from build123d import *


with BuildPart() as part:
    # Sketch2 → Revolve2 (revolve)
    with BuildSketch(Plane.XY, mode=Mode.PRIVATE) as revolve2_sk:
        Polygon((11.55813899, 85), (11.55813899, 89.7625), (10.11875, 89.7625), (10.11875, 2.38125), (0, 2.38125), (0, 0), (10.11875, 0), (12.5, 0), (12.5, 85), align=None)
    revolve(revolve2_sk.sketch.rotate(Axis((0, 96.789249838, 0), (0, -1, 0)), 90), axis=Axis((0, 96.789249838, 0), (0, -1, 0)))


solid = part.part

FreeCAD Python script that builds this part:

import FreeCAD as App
import Part
import Sketcher

V = App.Vector


def add_polygon(sketch, points):
    """Adds a closed chain of lines whose ends are joined by coincident constraints."""
    first, n = sketch.GeometryCount, len(points)
    for a, b in zip(points, points[1:] + points[:1]):
        sketch.addGeometry(Part.LineSegment(App.Vector(*a, 0), App.Vector(*b, 0)), False)
    for i in range(n):
        sketch.addConstraint(Sketcher.Constraint("Coincident", first + i, 2, first + (i + 1) % n, 1))

doc = App.newDocument("Part")
params = doc.addObject("Spreadsheet::Sheet", "Params")
for row, (alias, value) in enumerate([
    ("sketch1_height", "85 mm"),
    ("sketch1_width", "12.5 mm"),
    ("revolution_angle", "360 deg"),
], start=1):
    params.set(f"A{row}", alias)
    params.set(f"B{row}", "=" + value)
    params.setAlias(f"B{row}", alias)

body = doc.addObject("PartDesign::Body", "Body")

# Sketch on XY plane
sketch1 = body.newObject("Sketcher::SketchObject", "Sketch")
sketch1.AttachmentSupport = (doc.getObject("XY_Plane"), [""])
sketch1.MapMode = "FlatFace"
add_polygon(sketch1, [(11.558139, 85), (11.558139, 89.7625), (10.11875, 89.7625), (10.11875, 2.38125), (0, 2.38125), (0, 0), (12.5, 0), (12.5, 85)])  # lines 0-7
sketch1.addConstraint([
    Sketcher.Constraint("Vertical", 0),
    Sketcher.Constraint("Horizontal", 1),
    Sketcher.Constraint("Vertical", 2),
    Sketcher.Constraint("Horizontal", 3),
    Sketcher.Constraint("Vertical", 4),
    Sketcher.Constraint("Horizontal", 5),
    Sketcher.Constraint("Vertical", 6),
    Sketcher.Constraint("Horizontal", 7),
    Sketcher.Constraint("Coincident", 4, 2, -1, 1),
    Sketcher.Constraint("DistanceY", 6, 1, 6, 2, 85.0),
    Sketcher.Constraint("DistanceX", 5, 1, 5, 2, 12.5),
    Sketcher.Constraint("DistanceY", 0, 1, 0, 2, 4.7625),
    Sketcher.Constraint("DistanceX", 1, 2, 1, 1, 1.439389),
    Sketcher.Constraint("DistanceX", 3, 2, 3, 1, 10.11875),
    Sketcher.Constraint("DistanceY", 2, 2, 2, 1, 87.38125),
])
sketch1.setExpression("Constraints[17]", "Params.sketch1_height")
sketch1.setExpression("Constraints[18]", "Params.sketch1_width")
revolution = body.newObject("PartDesign::Revolution", "Revolution")
revolution.Profile = sketch1
revolution.ReferenceAxis = (sketch1, ["V_Axis"])
revolution.setExpression("Angle", "Params.revolution_angle")

doc.recompute()
